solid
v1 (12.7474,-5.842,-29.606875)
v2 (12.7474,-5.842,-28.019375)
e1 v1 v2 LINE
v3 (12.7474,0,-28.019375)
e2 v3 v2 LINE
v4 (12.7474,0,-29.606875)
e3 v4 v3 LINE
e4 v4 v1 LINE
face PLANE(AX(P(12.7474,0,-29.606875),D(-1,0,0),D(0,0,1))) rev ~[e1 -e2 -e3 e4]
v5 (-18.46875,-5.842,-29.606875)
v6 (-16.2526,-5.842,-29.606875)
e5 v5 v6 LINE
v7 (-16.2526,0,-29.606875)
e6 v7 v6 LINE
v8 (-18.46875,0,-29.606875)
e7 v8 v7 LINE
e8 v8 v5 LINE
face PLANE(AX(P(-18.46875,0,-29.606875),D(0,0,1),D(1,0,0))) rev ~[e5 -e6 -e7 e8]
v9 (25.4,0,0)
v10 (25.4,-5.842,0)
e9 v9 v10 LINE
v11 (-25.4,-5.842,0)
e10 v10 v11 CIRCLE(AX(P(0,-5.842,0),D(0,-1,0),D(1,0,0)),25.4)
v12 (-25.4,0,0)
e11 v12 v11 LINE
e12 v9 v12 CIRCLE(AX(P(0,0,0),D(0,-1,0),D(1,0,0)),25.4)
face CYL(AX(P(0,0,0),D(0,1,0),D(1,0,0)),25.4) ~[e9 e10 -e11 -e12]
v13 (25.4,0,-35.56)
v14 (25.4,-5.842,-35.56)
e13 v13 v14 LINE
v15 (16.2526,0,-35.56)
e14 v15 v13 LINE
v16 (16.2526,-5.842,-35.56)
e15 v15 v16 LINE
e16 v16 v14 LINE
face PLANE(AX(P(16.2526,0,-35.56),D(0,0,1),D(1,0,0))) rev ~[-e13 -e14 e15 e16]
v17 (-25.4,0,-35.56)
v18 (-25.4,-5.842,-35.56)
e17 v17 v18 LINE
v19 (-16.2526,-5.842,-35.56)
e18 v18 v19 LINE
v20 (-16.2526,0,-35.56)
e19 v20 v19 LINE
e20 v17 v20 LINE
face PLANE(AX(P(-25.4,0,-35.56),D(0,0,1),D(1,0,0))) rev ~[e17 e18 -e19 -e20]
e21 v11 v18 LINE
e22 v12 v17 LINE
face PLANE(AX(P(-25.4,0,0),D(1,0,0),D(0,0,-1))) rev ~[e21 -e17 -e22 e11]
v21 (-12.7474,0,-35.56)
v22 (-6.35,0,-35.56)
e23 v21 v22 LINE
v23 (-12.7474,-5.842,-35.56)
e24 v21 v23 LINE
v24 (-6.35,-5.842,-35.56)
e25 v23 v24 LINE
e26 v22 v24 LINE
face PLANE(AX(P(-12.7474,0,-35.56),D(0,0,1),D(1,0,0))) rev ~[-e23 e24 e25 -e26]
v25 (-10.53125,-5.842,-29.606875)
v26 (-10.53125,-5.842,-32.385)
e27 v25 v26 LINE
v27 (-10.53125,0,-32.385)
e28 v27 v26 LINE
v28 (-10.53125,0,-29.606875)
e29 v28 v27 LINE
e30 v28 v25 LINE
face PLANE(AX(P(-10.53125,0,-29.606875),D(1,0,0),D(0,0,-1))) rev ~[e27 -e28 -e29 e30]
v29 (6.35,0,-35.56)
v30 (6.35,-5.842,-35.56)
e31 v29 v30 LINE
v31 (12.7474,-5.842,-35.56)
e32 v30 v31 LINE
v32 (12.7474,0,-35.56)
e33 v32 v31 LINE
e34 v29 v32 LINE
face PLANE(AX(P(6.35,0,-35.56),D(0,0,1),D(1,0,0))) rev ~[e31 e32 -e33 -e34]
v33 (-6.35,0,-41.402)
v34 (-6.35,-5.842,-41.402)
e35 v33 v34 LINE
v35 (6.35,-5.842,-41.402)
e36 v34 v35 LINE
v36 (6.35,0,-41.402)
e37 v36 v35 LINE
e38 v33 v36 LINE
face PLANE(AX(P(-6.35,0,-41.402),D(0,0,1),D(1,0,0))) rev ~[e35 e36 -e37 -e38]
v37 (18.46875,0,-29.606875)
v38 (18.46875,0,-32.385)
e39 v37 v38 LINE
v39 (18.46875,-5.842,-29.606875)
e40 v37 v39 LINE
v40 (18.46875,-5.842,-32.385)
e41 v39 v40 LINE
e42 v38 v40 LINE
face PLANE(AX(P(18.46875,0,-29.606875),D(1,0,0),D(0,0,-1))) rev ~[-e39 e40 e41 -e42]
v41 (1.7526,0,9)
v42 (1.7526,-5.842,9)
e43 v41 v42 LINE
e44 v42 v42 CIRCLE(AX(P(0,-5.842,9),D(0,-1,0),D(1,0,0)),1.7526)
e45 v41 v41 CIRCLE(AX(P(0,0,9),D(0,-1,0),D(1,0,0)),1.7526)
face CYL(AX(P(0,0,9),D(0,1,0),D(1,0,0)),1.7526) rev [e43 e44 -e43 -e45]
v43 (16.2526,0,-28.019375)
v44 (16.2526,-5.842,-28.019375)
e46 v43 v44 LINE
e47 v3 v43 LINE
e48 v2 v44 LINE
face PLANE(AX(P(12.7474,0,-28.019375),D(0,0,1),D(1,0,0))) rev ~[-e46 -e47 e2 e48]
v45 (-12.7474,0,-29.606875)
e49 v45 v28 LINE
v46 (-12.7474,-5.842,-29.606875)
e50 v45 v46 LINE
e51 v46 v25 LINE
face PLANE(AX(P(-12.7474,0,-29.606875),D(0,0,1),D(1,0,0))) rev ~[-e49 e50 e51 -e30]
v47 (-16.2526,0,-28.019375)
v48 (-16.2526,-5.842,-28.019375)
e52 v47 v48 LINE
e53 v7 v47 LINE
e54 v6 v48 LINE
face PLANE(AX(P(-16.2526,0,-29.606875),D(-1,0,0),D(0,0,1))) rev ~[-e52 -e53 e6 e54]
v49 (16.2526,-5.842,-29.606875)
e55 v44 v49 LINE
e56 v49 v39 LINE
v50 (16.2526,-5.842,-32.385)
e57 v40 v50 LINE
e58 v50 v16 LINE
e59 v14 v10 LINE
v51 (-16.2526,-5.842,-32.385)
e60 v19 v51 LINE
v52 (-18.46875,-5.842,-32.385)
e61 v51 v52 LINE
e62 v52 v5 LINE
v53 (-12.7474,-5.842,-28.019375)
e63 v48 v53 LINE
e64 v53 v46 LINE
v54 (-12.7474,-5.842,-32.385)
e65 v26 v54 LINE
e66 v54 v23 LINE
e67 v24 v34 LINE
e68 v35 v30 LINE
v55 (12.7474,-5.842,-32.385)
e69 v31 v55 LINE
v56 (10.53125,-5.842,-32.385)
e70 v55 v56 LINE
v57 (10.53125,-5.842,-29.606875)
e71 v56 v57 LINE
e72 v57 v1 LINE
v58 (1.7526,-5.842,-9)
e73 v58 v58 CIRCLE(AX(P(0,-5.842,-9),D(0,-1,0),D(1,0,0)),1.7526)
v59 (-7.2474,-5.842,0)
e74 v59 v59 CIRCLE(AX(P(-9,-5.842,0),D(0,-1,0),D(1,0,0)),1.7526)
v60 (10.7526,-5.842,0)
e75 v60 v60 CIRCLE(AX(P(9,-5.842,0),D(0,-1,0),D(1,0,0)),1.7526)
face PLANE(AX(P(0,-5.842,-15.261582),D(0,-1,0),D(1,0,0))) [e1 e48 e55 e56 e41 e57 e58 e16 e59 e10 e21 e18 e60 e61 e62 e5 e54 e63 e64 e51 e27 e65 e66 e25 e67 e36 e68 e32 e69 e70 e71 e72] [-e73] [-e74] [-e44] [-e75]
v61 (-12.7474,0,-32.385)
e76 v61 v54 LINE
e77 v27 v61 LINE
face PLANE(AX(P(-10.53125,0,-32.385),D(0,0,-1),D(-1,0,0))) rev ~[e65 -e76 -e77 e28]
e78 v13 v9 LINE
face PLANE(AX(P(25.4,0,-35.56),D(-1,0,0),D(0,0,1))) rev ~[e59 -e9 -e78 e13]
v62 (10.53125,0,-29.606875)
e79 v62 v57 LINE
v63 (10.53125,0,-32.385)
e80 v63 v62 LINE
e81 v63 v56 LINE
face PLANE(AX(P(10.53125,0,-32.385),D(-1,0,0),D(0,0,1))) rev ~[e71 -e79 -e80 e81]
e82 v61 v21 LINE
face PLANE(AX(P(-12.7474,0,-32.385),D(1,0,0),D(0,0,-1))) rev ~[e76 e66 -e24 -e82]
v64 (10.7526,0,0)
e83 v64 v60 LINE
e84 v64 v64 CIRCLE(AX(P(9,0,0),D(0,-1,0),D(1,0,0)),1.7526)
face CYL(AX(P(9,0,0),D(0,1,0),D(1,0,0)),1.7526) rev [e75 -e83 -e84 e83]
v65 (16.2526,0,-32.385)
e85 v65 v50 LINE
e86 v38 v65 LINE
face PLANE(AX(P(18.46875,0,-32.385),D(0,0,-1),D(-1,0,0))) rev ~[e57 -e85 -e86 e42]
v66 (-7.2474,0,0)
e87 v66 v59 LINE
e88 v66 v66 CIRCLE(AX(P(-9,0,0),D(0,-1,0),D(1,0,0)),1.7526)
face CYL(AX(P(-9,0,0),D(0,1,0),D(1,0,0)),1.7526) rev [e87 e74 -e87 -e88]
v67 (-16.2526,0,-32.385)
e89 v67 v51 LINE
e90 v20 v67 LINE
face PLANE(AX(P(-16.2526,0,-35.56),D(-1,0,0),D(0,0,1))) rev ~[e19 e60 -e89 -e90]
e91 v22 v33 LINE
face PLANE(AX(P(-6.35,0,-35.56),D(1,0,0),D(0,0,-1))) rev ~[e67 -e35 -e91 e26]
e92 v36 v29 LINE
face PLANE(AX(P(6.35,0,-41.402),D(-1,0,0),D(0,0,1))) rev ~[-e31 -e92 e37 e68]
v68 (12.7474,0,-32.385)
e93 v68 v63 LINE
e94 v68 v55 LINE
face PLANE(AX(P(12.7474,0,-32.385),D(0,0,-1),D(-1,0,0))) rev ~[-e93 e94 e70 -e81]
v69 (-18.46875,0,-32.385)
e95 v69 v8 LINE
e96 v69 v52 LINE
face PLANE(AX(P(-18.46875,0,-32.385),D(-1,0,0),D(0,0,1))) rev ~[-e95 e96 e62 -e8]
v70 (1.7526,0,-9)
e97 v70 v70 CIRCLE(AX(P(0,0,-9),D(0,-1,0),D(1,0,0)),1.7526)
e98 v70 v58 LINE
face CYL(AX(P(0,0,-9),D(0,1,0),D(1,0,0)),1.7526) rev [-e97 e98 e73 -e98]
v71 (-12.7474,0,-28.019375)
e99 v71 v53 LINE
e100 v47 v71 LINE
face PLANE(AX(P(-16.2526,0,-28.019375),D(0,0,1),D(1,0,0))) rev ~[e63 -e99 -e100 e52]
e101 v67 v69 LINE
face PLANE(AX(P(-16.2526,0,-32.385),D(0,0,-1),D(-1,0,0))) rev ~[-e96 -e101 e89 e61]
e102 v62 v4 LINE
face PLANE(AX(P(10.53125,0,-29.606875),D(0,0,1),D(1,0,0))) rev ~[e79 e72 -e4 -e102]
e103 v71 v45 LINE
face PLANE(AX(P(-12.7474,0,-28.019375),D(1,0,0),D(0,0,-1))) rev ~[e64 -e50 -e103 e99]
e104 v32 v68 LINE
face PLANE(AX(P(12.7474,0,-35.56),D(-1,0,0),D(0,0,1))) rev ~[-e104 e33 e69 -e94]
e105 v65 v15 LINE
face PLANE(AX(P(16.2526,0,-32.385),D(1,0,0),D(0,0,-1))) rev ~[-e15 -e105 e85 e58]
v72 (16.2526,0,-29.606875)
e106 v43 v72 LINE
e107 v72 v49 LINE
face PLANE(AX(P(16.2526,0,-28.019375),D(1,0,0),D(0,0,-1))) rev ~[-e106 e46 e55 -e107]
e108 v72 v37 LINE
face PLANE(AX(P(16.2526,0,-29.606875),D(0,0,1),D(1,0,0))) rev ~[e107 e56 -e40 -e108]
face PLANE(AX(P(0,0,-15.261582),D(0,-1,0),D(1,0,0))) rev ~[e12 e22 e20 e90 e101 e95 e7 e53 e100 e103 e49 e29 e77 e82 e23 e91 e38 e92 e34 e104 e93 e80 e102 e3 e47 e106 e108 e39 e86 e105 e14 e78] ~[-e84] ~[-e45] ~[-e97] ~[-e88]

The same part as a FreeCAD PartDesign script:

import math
import FreeCAD as App
import Part
import Sketcher
from FreeCAD import Vector
Q = App.Units.Quantity

doc = App.newDocument("Part")
body = doc.addObject("PartDesign::Body", "Body")

sketch1 = body.newObject("Sketcher::SketchObject", "Sketch")
sketch1.AttachmentSupport = (doc.getObject("XZ_Plane"), [""])
sketch1.MapMode = "FlatFace"
sketch1.addGeometry(Part.ArcOfCircle(Part.Circle(Vector(0, 0, 0), Vector(0, 0, 1), 25.4), math.radians(0), math.radians(180)), False)
sketch1.addGeometry(Part.LineSegment(Vector(-25.4, 0, 0), Vector(-25.4, -35.56, 0)), False)
sketch1.addGeometry(Part.LineSegment(Vector(-25.4, -35.56, 0), Vector(-16.2526, -35.56, 0)), False)
sketch1.addGeometry(Part.LineSegment(Vector(-16.2526, -35.56, 0), Vector(-16.2526, -32.385, 0)), False)
sketch1.addGeometry(Part.LineSegment(Vector(-16.2526, -32.385, 0), Vector(-18.46875, -32.385, 0)), False)
sketch1.addGeometry(Part.LineSegment(Vector(-18.46875, -32.385, 0), Vector(-18.46875, -29.606875, 0)), False)
sketch1.addGeometry(Part.LineSegment(Vector(-18.46875, -29.606875, 0), Vector(-16.2526, -29.606875, 0)), False)
sketch1.addGeometry(Part.LineSegment(Vector(-16.2526, -29.606875, 0), Vector(-16.2526, -28.019375, 0)), False)
sketch1.addGeometry(Part.LineSegment(Vector(-16.2526, -28.019375, 0), Vector(-12.7474, -28.019375, 0)), False)
sketch1.addGeometry(Part.LineSegment(Vector(-12.7474, -28.019375, 0), Vector(-12.7474, -29.606875, 0)), False)
sketch1.addGeometry(Part.LineSegment(Vector(-12.7474, -29.606875, 0), Vector(-10.53125, -29.606875, 0)), False)
sketch1.addGeometry(Part.LineSegment(Vector(-10.53125, -29.606875, 0), Vector(-10.53125, -32.385, 0)), False)
sketch1.addGeometry(Part.LineSegment(Vector(-10.53125, -32.385, 0), Vector(-12.7474, -32.385, 0)), False)
sketch1.addGeometry(Part.LineSegment(Vector(-12.7474, -32.385, 0), Vector(-12.7474, -35.56, 0)), False)
sketch1.addGeometry(Part.LineSegment(Vector(-12.7474, -35.56, 0), Vector(-6.35, -35.56, 0)), False)
sketch1.addGeometry(Part.LineSegment(Vector(-6.35, -35.56, 0), Vector(-6.35, -41.402, 0)), False)
sketch1.addGeometry(Part.LineSegment(Vector(-6.35, -41.402, 0), Vector(6.35, -41.402, 0)), False)
sketch1.addGeometry(Part.LineSegment(Vector(6.35, -41.402, 0), Vector(6.35, -35.56, 0)), False)
sketch1.addGeometry(Part.LineSegment(Vector(6.35, -35.56, 0), Vector(12.7474, -35.56, 0)), False)
sketch1.addGeometry(Part.LineSegment(Vector(12.7474, -35.56, 0), Vector(12.7474, -32.385, 0)), False)
sketch1.addGeometry(Part.LineSegment(Vector(12.7474, -32.385, 0), Vector(10.53125, -32.385, 0)), False)
sketch1.addGeometry(Part.LineSegment(Vector(10.53125, -32.385, 0), Vector(10.53125, -29.606875, 0)), False)
sketch1.addGeometry(Part.LineSegment(Vector(10.53125, -29.606875, 0), Vector(12.7474, -29.606875, 0)), False)
sketch1.addGeometry(Part.LineSegment(Vector(12.7474, -29.606875, 0), Vector(12.7474, -28.019375, 0)), False)
sketch1.addGeometry(Part.LineSegment(Vector(12.7474, -28.019375, 0), Vector(16.2526, -28.019375, 0)), False)
sketch1.addGeometry(Part.LineSegment(Vector(16.2526, -28.019375, 0), Vector(16.2526, -29.606875, 0)), False)
sketch1.addGeometry(Part.LineSegment(Vector(16.2526, -29.606875, 0), Vector(18.46875, -29.606875, 0)), False)
sketch1.addGeometry(Part.LineSegment(Vector(18.46875, -29.606875, 0), Vector(18.46875, -32.385, 0)), False)
sketch1.addGeometry(Part.LineSegment(Vector(18.46875, -32.385, 0), Vector(16.2526, -32.385, 0)), False)
sketch1.addGeometry(Part.LineSegment(Vector(16.2526, -32.385, 0), Vector(16.2526, -35.56, 0)), False)
sketch1.addGeometry(Part.LineSegment(Vector(16.2526, -35.56, 0), Vector(25.4, -35.56, 0)), False)
sketch1.addGeometry(Part.LineSegment(Vector(25.4, -35.56, 0), Vector(25.4, 0, 0)), False)
sketch1.addGeometry(Part.Circle(Vector(0, -9, 0), Vector(0, 0, 1), 1.7526), False)
sketch1.addGeometry(Part.Circle(Vector(-9, 0, 0), Vector(0, 0, 1), 1.7526), False)
sketch1.addGeometry(Part.Circle(Vector(9, 0, 0), Vector(0, 0, 1), 1.7526), False)
sketch1.addGeometry(Part.Circle(Vector(0, 9, 0), Vector(0, 0, 1), 1.7526), False)
sketch1.addConstraint(Sketcher.Constraint("Tangent", 0, 2, 1, 1))
sketch1.addConstraint(Sketcher.Constraint("Coincident", 1, 2, 2, 1))
sketch1.addConstraint(Sketcher.Constraint("Coincident", 2, 2, 3, 1))
sketch1.addConstraint(Sketcher.Constraint("Coincident", 3, 2, 4, 1))
sketch1.addConstraint(Sketcher.Constraint("Coincident", 4, 2, 5, 1))
sketch1.addConstraint(Sketcher.Constraint("Coincident", 5, 2, 6, 1))
sketch1.addConstraint(Sketcher.Constraint("Coincident", 6, 2, 7, 1))
sketch1.addConstraint(Sketcher.Constraint("Coincident", 7, 2, 8, 1))
sketch1.addConstraint(Sketcher.Constraint("Coincident", 8, 2, 9, 1))
sketch1.addConstraint(Sketcher.Constraint("Coincident", 9, 2, 10, 1))
sketch1.addConstraint(Sketcher.Constraint("Coincident", 10, 2, 11, 1))
sketch1.addConstraint(Sketcher.Constraint("Coincident", 11, 2, 12, 1))
sketch1.addConstraint(Sketcher.Constraint("Coincident", 12, 2, 13, 1))
sketch1.addConstraint(Sketcher.Constraint("Coincident", 13, 2, 14, 1))
sketch1.addConstraint(Sketcher.Constraint("Coincident", 14, 2, 15, 1))
sketch1.addConstraint(Sketcher.Constraint("Coincident", 15, 2, 16, 1))
sketch1.addConstraint(Sketcher.Constraint("Coincident", 16, 2, 17, 1))
sketch1.addConstraint(Sketcher.Constraint("Coincident", 17, 2, 18, 1))
sketch1.addConstraint(Sketcher.Constraint("Coincident", 18, 2, 19, 1))
sketch1.addConstraint(Sketcher.Constraint("Coincident", 19, 2, 20, 1))
sketch1.addConstraint(Sketcher.Constraint("Coincident", 20, 2, 21, 1))
sketch1.addConstraint(Sketcher.Constraint("Coincident", 21, 2, 22, 1))
sketch1.addConstraint(Sketcher.Constraint("Coincident", 22, 2, 23, 1))
sketch1.addConstraint(Sketcher.Constraint("Coincident", 23, 2, 24, 1))
sketch1.addConstraint(Sketcher.Constraint("Coincident", 24, 2, 25, 1))
sketch1.addConstraint(Sketcher.Constraint("Coincident", 25, 2, 26, 1))
sketch1.addConstraint(Sketcher.Constraint("Coincident", 26, 2, 27, 1))
sketch1.addConstraint(Sketcher.Constraint("Coincident", 27, 2, 28, 1))
sketch1.addConstraint(Sketcher.Constraint("Coincident", 28, 2, 29, 1))
sketch1.addConstraint(Sketcher.Constraint("Coincident", 29, 2, 30, 1))
sketch1.addConstraint(Sketcher.Constraint("Coincident", 30, 2, 31, 1))
sketch1.addConstraint(Sketcher.Constraint("Tangent", 31, 2, 0, 1))
sketch1.addConstraint(Sketcher.Constraint("Vertical", 1))
sketch1.addConstraint(Sketcher.Constraint("Horizontal", 2))
sketch1.addConstraint(Sketcher.Constraint("Vertical", 3))
sketch1.addConstraint(Sketcher.Constraint("Horizontal", 4))
sketch1.addConstraint(Sketcher.Constraint("Vertical", 5))
sketch1.addConstraint(Sketcher.Constraint("Horizontal", 6))
sketch1.addConstraint(Sketcher.Constraint("Vertical", 7))
sketch1.addConstraint(Sketcher.Constraint("Horizontal", 8))
sketch1.addConstraint(Sketcher.Constraint("Vertical", 9))
sketch1.addConstraint(Sketcher.Constraint("Horizontal", 10))
sketch1.addConstraint(Sketcher.Constraint("Vertical", 11))
sketch1.addConstraint(Sketcher.Constraint("Horizontal", 12))
sketch1.addConstraint(Sketcher.Constraint("Vertical", 13))
sketch1.addConstraint(Sketcher.Constraint("Horizontal", 14))
sketch1.addConstraint(Sketcher.Constraint("Vertical", 15))
sketch1.addConstraint(Sketcher.Constraint("Horizontal", 16))
sketch1.addConstraint(Sketcher.Constraint("Vertical", 17))
sketch1.addConstraint(Sketcher.Constraint("Horizontal", 18))
sketch1.addConstraint(Sketcher.Constraint("Vertical", 19))
sketch1.addConstraint(Sketcher.Constraint("Horizontal", 20))
sketch1.addConstraint(Sketcher.Constraint("Vertical", 21))
sketch1.addConstraint(Sketcher.Constraint("Horizontal", 22))
sketch1.addConstraint(Sketcher.Constraint("Vertical", 23))
sketch1.addConstraint(Sketcher.Constraint("Horizontal", 24))
sketch1.addConstraint(Sketcher.Constraint("Vertical", 25))
sketch1.addConstraint(Sketcher.Constraint("Horizontal", 26))
sketch1.addConstraint(Sketcher.Constraint("Vertical", 27))
sketch1.addConstraint(Sketcher.Constraint("Horizontal", 28))
sketch1.addConstraint(Sketcher.Constraint("Vertical", 29))
sketch1.addConstraint(Sketcher.Constraint("Horizontal", 30))
sketch1.addConstraint(Sketcher.Constraint("Vertical", 31))
sketch1.addConstraint(Sketcher.Constraint("Coincident", 0, 3, -1, 1))
sketch1.addConstraint(Sketcher.Constraint("Equal", 32, 33))
sketch1.addConstraint(Sketcher.Constraint("Equal", 33, 34))
sketch1.addConstraint(Sketcher.Constraint("Equal", 34, 35))
sketch1.addConstraint(Sketcher.Constraint("Symmetric", 33, 3, 34, 3, -1, 1))
sketch1.addConstraint(Sketcher.Constraint("Symmetric", 32, 3, 35, 3, -1, 1))
sketch1.addConstraint(Sketcher.Constraint("Symmetric", 14, 2, 17, 2, -2))
sketch1.addConstraint(Sketcher.Constraint("Symmetric", 12, 2, 19, 2, -2))
sketch1.addConstraint(Sketcher.Constraint("Symmetric", 10, 2, 21, 2, -2))
sketch1.addConstraint(Sketcher.Constraint("Symmetric", 8, 2, 23, 2, -2))
sketch1.addConstraint(Sketcher.Constraint("Symmetric", 6, 2, 25, 2, -2))
sketch1.addConstraint(Sketcher.Constraint("Symmetric", 4, 2, 27, 2, -2))
sketch1.addConstraint(Sketcher.Constraint("Symmetric", 2, 2, 29, 2, -2))
sketch1.addConstraint(Sketcher.Constraint("PointOnObject", 32, 3, -2))
sketch1.addConstraint(Sketcher.Constraint("PointOnObject", 33, 3, -1))
sketch1.addConstraint(Sketcher.Constraint("Horizontal", 6, 2, 9, 2))
sketch1.addConstraint(Sketcher.Constraint("Horizontal", 4, 2, 11, 2))
sketch1.addConstraint(Sketcher.Constraint("Horizontal", 2, 2, 13, 2))
sketch1.addConstraint(Sketcher.Constraint("Vertical", 3, 2, 6, 2))
sketch1.addConstraint(Sketcher.Constraint("Vertical", 9, 2, 12, 2))
sketch1.addConstraint(Sketcher.Constraint("Equal", 6, 10))
sketch1.addConstraint(Sketcher.Constraint("Radius", 0, Q("1 in")))
sketch1.addConstraint(Sketcher.Constraint("Diameter", 32, Q("0.138 in")))
sketch1.addConstraint(Sketcher.Constraint("DistanceX", 16, 1, 16, 2, Q("0.5 in")))
sketch1.addConstraint(Sketcher.Constraint("DistanceY", 1, 2, 1, 1, Q("1.4 in")))
sketch1.addConstraint(Sketcher.Constraint("DistanceY", 15, 2, 15, 1, Q("0.23 in")))
sketch1.addConstraint(Sketcher.Constraint("DistanceX", 8, 1, 8, 2, Q("0.138 in")))
sketch1.addConstraint(Sketcher.Constraint("DistanceY", 3, 1, 3, 2, Q("0.125 in")))
sketch1.addConstraint(Sketcher.Constraint("DistanceY", 5, 1, 5, 2, Q("0.109375 in")))
sketch1.addConstraint(Sketcher.Constraint("DistanceY", 7, 1, 7, 2, Q("0.0625 in")))
sketch1.addConstraint(Sketcher.Constraint("DistanceX", 2, 1, 2, 2, 9.1474))
sketch1.addConstraint(Sketcher.Constraint("DistanceX", 4, 2, 4, 1, 2.21615))
sketch1.addConstraint(Sketcher.Constraint("DistanceY", 32, 3, -1, 1, 9.0))
sketch1.addConstraint(Sketcher.Constraint("DistanceX", 33, 3, -1, 1, 9.0))
pad1 = body.newObject("PartDesign::Pad", "Pad")
pad1.Profile = sketch1
pad1.Length = Q("0.23 in")

doc.recompute()
